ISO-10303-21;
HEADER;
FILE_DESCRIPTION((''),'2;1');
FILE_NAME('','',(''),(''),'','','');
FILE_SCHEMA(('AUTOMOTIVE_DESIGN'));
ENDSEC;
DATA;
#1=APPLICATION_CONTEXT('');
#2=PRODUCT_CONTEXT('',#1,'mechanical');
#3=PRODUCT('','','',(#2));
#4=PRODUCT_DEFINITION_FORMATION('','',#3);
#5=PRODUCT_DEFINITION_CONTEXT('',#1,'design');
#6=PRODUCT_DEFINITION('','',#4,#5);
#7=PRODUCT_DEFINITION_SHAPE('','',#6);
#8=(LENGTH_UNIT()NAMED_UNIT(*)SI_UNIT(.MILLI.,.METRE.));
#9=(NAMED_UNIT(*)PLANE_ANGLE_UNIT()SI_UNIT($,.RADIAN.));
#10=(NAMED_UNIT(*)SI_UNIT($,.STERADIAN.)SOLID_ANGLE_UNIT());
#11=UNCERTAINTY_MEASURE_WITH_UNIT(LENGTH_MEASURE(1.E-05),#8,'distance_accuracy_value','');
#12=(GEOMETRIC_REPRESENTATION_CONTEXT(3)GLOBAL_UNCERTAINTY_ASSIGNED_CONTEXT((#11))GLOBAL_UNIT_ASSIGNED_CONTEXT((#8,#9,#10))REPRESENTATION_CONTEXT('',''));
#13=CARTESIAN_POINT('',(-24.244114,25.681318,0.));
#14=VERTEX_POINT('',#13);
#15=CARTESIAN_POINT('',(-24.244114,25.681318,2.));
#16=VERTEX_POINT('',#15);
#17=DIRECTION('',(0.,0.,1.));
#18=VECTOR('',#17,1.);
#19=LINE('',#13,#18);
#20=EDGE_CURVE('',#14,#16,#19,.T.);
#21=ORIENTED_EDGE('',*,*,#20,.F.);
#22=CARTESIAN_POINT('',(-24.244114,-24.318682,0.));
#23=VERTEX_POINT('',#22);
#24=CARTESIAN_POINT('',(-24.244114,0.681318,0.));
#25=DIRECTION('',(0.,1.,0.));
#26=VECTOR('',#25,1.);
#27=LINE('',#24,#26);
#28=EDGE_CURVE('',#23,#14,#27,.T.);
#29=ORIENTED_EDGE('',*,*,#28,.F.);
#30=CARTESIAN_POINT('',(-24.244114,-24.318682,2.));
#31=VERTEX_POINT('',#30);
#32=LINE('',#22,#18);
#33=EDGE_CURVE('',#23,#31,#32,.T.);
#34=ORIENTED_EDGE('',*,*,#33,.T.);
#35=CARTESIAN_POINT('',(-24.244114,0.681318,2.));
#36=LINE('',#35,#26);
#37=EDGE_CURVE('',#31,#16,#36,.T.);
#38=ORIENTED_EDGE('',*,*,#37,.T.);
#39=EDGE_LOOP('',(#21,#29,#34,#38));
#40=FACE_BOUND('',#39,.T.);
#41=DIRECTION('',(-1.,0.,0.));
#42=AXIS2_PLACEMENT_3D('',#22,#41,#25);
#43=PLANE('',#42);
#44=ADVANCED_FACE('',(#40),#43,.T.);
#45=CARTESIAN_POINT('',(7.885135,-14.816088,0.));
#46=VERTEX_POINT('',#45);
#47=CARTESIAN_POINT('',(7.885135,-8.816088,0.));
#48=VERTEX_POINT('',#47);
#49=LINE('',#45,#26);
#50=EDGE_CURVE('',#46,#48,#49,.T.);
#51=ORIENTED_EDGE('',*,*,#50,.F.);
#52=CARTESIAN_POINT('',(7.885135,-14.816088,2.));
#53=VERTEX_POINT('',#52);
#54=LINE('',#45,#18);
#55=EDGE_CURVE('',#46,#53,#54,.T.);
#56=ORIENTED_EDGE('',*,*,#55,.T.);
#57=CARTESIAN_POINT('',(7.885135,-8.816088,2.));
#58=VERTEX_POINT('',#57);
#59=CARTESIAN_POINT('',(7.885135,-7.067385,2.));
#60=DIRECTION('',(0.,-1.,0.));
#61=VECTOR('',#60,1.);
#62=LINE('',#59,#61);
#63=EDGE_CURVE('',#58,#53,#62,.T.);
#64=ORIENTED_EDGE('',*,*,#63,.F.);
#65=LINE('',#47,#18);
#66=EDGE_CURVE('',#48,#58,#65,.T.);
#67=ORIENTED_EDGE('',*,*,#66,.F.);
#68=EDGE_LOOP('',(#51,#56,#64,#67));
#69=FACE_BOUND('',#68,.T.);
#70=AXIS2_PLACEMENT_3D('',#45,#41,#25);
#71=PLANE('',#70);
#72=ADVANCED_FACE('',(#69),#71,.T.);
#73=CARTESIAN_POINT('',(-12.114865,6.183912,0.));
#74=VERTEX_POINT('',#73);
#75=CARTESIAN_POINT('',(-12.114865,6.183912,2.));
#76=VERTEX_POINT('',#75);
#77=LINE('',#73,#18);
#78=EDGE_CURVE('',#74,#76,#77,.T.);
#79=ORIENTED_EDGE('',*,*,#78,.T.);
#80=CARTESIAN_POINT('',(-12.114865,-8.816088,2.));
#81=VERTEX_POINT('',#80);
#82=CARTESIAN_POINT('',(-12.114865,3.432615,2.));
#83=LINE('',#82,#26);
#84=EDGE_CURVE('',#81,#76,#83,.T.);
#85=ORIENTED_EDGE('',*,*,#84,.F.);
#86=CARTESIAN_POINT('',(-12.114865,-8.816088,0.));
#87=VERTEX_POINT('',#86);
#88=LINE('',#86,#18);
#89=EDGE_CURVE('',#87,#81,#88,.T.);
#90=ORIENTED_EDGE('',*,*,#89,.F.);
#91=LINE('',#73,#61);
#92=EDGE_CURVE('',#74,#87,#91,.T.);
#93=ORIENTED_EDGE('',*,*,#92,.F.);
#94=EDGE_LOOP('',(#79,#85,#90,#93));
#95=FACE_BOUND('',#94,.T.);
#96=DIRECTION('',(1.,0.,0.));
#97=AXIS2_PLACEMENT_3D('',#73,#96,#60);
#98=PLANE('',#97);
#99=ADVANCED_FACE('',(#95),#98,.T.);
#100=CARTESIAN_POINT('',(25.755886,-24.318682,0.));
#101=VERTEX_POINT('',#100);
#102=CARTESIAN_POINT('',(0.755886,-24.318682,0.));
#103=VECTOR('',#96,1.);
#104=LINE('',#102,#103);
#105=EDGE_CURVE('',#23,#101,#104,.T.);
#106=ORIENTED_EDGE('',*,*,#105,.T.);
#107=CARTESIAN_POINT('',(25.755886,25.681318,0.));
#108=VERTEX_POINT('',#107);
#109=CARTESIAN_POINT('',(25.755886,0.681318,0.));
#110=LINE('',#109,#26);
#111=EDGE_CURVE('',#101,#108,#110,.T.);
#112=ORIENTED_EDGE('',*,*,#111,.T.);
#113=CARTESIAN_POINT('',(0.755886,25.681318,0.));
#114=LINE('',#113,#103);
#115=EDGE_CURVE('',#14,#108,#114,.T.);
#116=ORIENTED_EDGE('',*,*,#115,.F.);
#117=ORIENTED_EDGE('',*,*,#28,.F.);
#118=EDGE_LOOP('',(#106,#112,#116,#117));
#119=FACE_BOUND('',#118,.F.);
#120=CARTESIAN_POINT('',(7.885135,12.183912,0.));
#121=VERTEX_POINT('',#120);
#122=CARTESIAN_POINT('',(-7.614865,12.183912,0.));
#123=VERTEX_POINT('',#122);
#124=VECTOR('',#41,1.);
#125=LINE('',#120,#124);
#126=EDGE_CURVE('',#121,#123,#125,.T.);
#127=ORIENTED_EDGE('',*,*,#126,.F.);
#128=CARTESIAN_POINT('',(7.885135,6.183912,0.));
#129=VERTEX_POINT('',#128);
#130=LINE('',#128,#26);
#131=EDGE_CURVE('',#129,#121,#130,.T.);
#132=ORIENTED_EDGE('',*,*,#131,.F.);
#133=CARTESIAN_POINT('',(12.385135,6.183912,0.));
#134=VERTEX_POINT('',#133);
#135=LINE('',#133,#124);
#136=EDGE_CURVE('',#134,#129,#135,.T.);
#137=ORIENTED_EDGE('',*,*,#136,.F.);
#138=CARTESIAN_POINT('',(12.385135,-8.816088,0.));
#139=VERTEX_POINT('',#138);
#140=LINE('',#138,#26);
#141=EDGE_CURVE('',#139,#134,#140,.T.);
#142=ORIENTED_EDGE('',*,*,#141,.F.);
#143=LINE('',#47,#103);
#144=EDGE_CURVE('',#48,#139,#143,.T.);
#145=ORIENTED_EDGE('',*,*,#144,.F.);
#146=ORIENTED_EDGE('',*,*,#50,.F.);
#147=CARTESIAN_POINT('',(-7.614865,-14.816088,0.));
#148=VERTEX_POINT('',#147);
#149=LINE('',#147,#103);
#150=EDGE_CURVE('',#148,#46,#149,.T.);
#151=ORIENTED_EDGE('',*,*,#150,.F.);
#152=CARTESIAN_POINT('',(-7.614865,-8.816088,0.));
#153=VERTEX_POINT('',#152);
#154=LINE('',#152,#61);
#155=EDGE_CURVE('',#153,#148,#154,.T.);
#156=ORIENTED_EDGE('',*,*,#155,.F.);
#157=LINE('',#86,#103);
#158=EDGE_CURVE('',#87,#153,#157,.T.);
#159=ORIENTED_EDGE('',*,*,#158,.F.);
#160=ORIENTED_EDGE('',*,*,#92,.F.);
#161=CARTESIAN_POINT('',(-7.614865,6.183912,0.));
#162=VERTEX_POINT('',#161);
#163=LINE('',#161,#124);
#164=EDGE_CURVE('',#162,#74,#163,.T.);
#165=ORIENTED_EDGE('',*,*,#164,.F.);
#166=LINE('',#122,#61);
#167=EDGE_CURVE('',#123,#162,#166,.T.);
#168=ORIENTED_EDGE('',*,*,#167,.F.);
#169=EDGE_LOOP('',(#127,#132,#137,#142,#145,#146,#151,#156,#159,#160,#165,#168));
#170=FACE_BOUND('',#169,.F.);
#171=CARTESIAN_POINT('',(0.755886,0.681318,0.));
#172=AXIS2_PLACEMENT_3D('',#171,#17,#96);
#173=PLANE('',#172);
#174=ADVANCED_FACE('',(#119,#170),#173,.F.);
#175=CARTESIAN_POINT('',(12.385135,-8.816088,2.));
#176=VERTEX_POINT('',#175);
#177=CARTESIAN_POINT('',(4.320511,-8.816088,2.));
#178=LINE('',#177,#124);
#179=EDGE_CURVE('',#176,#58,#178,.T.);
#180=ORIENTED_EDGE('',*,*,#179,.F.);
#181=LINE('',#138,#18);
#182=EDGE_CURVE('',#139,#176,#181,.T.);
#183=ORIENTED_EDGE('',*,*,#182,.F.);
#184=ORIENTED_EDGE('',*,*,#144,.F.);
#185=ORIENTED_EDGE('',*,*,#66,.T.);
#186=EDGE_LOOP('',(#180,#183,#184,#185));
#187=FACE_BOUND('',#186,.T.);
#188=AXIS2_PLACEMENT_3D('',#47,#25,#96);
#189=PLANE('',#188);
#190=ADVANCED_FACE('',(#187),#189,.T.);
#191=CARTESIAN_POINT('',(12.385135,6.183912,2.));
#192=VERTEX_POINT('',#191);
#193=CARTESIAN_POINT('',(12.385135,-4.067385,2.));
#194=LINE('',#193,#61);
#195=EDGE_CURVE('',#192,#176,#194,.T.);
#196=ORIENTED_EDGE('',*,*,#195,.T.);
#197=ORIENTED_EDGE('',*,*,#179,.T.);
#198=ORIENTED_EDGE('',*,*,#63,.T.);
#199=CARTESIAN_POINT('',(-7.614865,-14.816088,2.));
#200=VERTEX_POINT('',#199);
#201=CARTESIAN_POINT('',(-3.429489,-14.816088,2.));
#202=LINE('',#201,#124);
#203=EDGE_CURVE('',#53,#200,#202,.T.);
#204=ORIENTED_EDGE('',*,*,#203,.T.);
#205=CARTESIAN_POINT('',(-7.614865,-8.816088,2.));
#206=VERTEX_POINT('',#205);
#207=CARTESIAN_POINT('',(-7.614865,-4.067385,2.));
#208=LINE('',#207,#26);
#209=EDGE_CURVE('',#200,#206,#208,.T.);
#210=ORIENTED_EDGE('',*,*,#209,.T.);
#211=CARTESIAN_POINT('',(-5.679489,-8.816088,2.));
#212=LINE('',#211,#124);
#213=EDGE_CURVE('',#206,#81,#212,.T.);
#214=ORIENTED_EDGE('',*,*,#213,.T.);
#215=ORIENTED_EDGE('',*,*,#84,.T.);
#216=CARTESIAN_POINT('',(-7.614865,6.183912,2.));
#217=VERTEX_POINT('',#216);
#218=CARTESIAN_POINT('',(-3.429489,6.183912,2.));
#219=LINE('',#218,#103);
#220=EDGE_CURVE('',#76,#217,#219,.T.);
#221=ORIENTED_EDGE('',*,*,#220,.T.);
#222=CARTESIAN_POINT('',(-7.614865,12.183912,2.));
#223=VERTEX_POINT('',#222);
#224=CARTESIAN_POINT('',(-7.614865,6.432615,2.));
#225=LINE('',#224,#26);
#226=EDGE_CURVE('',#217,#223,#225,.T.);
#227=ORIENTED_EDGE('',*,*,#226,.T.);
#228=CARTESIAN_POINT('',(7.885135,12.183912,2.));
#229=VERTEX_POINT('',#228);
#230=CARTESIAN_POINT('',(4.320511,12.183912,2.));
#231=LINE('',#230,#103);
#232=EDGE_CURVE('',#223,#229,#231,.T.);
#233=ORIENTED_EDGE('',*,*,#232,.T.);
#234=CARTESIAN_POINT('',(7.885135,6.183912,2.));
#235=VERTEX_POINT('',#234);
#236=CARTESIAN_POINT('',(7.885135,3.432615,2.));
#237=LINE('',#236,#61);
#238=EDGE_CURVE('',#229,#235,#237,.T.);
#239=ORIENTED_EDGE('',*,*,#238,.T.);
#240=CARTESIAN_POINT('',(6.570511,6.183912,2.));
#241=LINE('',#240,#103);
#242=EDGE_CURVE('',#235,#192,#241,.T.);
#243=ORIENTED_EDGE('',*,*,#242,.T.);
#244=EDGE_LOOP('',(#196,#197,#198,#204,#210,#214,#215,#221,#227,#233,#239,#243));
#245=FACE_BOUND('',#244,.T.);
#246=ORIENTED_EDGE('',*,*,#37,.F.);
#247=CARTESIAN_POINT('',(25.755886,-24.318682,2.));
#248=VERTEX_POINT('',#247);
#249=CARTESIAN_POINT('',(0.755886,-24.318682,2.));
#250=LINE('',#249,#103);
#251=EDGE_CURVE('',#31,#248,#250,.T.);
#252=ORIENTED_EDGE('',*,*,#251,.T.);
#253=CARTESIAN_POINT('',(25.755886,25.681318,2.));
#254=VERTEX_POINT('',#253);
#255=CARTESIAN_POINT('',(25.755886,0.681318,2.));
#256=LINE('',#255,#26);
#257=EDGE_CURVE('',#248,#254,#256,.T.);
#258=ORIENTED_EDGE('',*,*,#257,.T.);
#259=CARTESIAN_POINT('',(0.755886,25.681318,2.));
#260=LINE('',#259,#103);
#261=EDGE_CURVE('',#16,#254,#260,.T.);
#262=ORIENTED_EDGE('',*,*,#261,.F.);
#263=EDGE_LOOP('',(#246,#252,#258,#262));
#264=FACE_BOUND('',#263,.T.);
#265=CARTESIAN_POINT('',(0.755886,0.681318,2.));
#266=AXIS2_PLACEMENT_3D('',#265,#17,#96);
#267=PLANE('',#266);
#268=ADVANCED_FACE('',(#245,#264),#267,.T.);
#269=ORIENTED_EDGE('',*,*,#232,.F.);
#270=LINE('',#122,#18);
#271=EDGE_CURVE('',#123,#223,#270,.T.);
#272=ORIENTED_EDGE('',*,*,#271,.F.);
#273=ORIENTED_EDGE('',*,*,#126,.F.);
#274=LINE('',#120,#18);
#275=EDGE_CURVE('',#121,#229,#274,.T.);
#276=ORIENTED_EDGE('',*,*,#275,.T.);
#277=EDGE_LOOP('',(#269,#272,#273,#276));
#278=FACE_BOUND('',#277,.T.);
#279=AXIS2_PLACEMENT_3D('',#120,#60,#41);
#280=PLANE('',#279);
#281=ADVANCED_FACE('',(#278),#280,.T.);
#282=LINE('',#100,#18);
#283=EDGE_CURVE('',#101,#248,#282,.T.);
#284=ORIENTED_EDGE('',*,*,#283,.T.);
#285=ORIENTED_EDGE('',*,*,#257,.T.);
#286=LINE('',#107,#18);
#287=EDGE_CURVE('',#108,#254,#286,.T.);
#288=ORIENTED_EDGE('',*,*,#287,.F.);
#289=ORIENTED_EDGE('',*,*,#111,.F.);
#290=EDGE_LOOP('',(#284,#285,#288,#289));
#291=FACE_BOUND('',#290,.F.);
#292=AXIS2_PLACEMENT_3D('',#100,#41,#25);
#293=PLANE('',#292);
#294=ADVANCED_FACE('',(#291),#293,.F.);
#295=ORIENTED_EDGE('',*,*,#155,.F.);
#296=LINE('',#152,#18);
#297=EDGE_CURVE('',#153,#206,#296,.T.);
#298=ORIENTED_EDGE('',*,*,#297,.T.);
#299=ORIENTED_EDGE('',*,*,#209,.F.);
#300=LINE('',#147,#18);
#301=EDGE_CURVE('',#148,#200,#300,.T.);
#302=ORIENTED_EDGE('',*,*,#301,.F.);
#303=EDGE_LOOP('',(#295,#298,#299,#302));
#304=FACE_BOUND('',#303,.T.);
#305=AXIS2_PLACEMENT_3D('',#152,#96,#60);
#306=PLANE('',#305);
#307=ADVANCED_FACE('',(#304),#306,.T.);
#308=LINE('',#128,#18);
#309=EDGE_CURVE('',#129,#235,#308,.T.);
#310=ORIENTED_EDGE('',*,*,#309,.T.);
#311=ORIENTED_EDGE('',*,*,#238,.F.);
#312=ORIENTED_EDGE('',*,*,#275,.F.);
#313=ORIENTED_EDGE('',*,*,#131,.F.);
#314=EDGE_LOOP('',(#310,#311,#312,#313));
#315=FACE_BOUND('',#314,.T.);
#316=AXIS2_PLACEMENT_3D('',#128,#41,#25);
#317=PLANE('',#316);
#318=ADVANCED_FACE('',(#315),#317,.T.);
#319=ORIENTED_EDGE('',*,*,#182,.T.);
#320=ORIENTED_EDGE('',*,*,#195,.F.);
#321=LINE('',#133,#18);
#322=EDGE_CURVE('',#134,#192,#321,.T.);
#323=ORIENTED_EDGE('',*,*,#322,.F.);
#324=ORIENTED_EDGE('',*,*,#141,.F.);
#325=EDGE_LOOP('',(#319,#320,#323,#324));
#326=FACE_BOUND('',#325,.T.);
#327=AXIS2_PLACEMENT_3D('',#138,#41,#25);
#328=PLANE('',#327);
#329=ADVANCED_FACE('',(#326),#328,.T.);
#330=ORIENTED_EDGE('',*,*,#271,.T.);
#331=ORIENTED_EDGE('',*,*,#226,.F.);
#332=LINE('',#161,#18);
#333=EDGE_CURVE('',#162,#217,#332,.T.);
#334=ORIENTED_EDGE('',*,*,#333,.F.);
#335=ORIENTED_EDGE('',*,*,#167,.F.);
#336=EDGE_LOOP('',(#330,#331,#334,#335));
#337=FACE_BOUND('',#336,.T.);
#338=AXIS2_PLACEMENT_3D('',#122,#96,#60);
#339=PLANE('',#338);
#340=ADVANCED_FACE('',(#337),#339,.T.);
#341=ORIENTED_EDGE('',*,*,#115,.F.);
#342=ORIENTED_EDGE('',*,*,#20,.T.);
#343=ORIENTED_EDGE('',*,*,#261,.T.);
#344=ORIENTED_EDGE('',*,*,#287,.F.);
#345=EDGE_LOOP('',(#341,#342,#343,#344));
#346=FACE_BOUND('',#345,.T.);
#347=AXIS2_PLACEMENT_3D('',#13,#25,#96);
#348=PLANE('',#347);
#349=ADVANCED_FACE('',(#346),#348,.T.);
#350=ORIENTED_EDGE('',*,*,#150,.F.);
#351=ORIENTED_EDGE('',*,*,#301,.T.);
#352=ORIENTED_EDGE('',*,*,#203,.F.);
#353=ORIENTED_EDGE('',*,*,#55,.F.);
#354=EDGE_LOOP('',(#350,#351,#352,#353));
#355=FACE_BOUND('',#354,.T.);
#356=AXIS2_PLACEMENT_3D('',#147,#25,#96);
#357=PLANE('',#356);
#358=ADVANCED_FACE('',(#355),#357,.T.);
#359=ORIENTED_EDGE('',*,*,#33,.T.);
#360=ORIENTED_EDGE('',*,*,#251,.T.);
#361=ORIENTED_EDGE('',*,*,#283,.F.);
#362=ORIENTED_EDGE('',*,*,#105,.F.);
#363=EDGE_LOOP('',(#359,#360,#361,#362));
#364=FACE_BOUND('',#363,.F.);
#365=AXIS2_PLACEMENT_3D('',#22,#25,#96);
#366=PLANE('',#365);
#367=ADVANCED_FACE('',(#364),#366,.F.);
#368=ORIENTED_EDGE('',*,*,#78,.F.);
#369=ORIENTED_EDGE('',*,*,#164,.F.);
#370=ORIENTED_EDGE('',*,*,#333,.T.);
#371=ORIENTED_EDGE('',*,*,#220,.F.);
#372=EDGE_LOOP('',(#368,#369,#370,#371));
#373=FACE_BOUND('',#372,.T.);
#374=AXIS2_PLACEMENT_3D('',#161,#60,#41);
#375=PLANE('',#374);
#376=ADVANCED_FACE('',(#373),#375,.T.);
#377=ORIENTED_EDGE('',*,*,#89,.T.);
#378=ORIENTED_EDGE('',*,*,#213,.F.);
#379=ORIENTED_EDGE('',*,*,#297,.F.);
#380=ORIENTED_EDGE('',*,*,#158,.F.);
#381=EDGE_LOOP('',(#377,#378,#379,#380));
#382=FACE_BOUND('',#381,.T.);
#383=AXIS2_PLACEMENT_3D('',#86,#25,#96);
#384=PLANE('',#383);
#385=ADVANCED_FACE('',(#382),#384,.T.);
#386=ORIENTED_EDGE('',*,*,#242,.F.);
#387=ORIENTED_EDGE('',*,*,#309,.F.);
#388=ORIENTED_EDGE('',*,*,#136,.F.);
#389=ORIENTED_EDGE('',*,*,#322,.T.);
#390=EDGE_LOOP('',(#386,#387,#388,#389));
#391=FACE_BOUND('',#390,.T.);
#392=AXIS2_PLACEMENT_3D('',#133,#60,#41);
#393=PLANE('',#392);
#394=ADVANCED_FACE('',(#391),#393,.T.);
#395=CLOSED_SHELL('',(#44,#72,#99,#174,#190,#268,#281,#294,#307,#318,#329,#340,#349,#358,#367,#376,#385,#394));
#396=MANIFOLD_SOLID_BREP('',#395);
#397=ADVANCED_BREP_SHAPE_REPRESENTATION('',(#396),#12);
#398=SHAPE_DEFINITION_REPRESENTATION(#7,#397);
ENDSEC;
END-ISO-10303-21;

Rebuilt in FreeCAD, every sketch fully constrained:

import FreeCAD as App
import Part
import Sketcher

V = App.Vector
Q = App.Units.Quantity

doc = App.newDocument("Part")
body = doc.addObject("PartDesign::Body", "Body")

sketch1 = doc.addObject("Sketcher::SketchObject", "Sketch")
body.addObject(sketch1)
sketch1.AttachmentSupport = (doc.XY_Plane, [""])
sketch1.MapMode = "FlatFace"
sketch1.addGeometry(Part.LineSegment(V(-24, 26, 0), V(-24, -24, 0)), False)
sketch1.addGeometry(Part.LineSegment(V(-24, -24, 0), V(26, -24, 0)), False)
sketch1.addGeometry(Part.LineSegment(V(26, -24, 0), V(26, 26, 0)), False)
sketch1.addGeometry(Part.LineSegment(V(26, 26, 0), V(-24, 26, 0)), False)
sketch1.addConstraint(Sketcher.Constraint("Coincident", 0, 2, 1, 1))
sketch1.addConstraint(Sketcher.Constraint("Coincident", 1, 2, 2, 1))
sketch1.addConstraint(Sketcher.Constraint("Coincident", 2, 2, 3, 1))
sketch1.addConstraint(Sketcher.Constraint("Coincident", 3, 2, 0, 1))
sketch1.addConstraint(Sketcher.Constraint("Vertical", 0))
sketch1.addConstraint(Sketcher.Constraint("Horizontal", 1))
sketch1.addConstraint(Sketcher.Constraint("Vertical", 2))
sketch1.addConstraint(Sketcher.Constraint("Horizontal", 3))
sketch1.addConstraint(Sketcher.Constraint("Equal", 3, 0))
sketch1.addConstraint(Sketcher.Constraint("DistanceX", 1, 1, 1, 2, Q("50 mm")))
sketch1.addConstraint(Sketcher.Constraint("DistanceY", 0, 2, -1, 1, Q("24.318682 mm")))
sketch1.addConstraint(Sketcher.Constraint("DistanceX", 0, 2, -1, 1, Q("24.244114 mm")))
pad1 = doc.addObject("PartDesign::Pad", "Pad")
body.addObject(pad1)
pad1.Profile = sketch1
pad1.Length = 2
body2 = doc.addObject("PartDesign::Body", "Body001")

sketch2 = doc.addObject("Sketcher::SketchObject", "Sketch001")
body2.addObject(sketch2)
sketch2.AttachmentSupport = (doc.getObject("XY_Plane001"), [""])
sketch2.MapMode = "FlatFace"
sketch2.addGeometry(Part.LineSegment(V(7.9, 12.2, 0), V(-7.6, 12.2, 0)), False)
sketch2.addGeometry(Part.LineSegment(V(-7.6, 12.2, 0), V(-7.6, 6.2, 0)), False)
sketch2.addGeometry(Part.LineSegment(V(-7.6, 6.2, 0), V(-12.1, 6.2, 0)), False)
sketch2.addGeometry(Part.LineSegment(V(-12.1, 6.2, 0), V(-12.1, -8.8, 0)), False)
sketch2.addGeometry(Part.LineSegment(V(-12.1, -8.8, 0), V(-7.6, -8.8, 0)), False)
sketch2.addGeometry(Part.LineSegment(V(-7.6, -8.8, 0), V(-7.6, -14.8, 0)), False)
sketch2.addGeometry(Part.LineSegment(V(-7.6, -14.8, 0), V(7.9, -14.8, 0)), False)
sketch2.addGeometry(Part.LineSegment(V(7.9, -14.8, 0), V(7.9, -8.8, 0)), False)
sketch2.addGeometry(Part.LineSegment(V(7.9, -8.8, 0), V(12.4, -8.8, 0)), False)
sketch2.addGeometry(Part.LineSegment(V(12.4, -8.8, 0), V(12.4, 6.2, 0)), False)
sketch2.addGeometry(Part.LineSegment(V(12.4, 6.2, 0), V(7.9, 6.2, 0)), False)
sketch2.addGeometry(Part.LineSegment(V(7.9, 6.2, 0), V(7.9, 12.2, 0)), False)
sketch2.addConstraint(Sketcher.Constraint("Coincident", 0, 2, 1, 1))
sketch2.addConstraint(Sketcher.Constraint("Coincident", 1, 2, 2, 1))
sketch2.addConstraint(Sketcher.Constraint("Coincident", 2, 2, 3, 1))
sketch2.addConstraint(Sketcher.Constraint("Coincident", 3, 2, 4, 1))
sketch2.addConstraint(Sketcher.Constraint("Coincident", 4, 2, 5, 1))
sketch2.addConstraint(Sketcher.Constraint("Coincident", 5, 2, 6, 1))
sketch2.addConstraint(Sketcher.Constraint("Coincident", 6, 2, 7, 1))
sketch2.addConstraint(Sketcher.Constraint("Coincident", 7, 2, 8, 1))
sketch2.addConstraint(Sketcher.Constraint("Coincident", 8, 2, 9, 1))
sketch2.addConstraint(Sketcher.Constraint("Coincident", 9, 2, 10, 1))
sketch2.addConstraint(Sketcher.Constraint("Coincident", 10, 2, 11, 1))
sketch2.addConstraint(Sketcher.Constraint("Coincident", 11, 2, 0, 1))
sketch2.addConstraint(Sketcher.Constraint("Horizontal", 0))
sketch2.addConstraint(Sketcher.Constraint("Vertical", 1))
sketch2.addConstraint(Sketcher.Constraint("Horizontal", 2))
sketch2.addConstraint(Sketcher.Constraint("Vertical", 3))
sketch2.addConstraint(Sketcher.Constraint("Horizontal", 4))
sketch2.addConstraint(Sketcher.Constraint("Vertical", 5))
sketch2.addConstraint(Sketcher.Constraint("Horizontal", 6))
sketch2.addConstraint(Sketcher.Constraint("Vertical", 7))
sketch2.addConstraint(Sketcher.Constraint("Horizontal", 8))
sketch2.addConstraint(Sketcher.Constraint("Vertical", 9))
sketch2.addConstraint(Sketcher.Constraint("Horizontal", 10))
sketch2.addConstraint(Sketcher.Constraint("Vertical", 11))
sketch2.addConstraint(Sketcher.Constraint("Horizontal", 4, 2, 7, 2))
sketch2.addConstraint(Sketcher.Constraint("Horizontal", 2, 2, 9, 2))
sketch2.addConstraint(Sketcher.Constraint("Vertical", 1, 2, 4, 2))
sketch2.addConstraint(Sketcher.Constraint("Vertical", 7, 2, 10, 2))
sketch2.addConstraint(Sketcher.Constraint("Equal", 4, 8))
sketch2.addConstraint(Sketcher.Constraint("Equal", 1, 5))
sketch2.addConstraint(Sketcher.Constraint("DistanceY", 1, 2, 1, 1, Q("6 mm")))
sketch2.addConstraint(Sketcher.Constraint("DistanceY", 3, 2, 3, 1, Q("15 mm")))
sketch2.addConstraint(Sketcher.Constraint("DistanceX", 0, 2, 0, 1, Q("15.5 mm")))
sketch2.addConstraint(Sketcher.Constraint("DistanceX", 2, 2, 2, 1, Q("4.5 mm")))
sketch2.addConstraint(Sketcher.Constraint("DistanceX", 0, 2, -1, 1, Q("7.614865 mm")))
sketch2.addConstraint(Sketcher.Constraint("DistanceY", -1, 1, 0, 2, Q("12.183912 mm")))
pad2 = doc.addObject("PartDesign::Pad", "Pad001")
body2.addObject(pad2)
pad2.Profile = sketch2
pad2.Length = 25
doc.recompute()

boolean = doc.addObject("PartDesign::Boolean", "Boolean")
body.addObject(boolean)
boolean.Type = "Cut"
boolean.addObjects([body2])

doc.recompute()
